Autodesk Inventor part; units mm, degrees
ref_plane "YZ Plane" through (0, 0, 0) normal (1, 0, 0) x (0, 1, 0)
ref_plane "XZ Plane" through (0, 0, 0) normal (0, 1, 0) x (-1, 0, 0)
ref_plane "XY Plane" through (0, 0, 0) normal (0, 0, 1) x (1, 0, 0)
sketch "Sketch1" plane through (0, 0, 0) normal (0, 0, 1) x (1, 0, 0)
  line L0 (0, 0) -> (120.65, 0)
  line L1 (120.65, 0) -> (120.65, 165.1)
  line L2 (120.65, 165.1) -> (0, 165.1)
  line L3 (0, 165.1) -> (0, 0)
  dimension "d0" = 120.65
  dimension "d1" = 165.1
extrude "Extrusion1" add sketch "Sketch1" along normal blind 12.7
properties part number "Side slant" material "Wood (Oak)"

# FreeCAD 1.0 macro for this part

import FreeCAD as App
import Part
import Sketcher
Q = App.Units.Quantity


def add_polygon(sketch, points):
    """Adds a closed chain of lines whose ends are joined by coincident constraints."""
    first, n = sketch.GeometryCount, len(points)
    for a, b in zip(points, points[1:] + points[:1]):
        sketch.addGeometry(Part.LineSegment(App.Vector(*a, 0), App.Vector(*b, 0)), False)
    for i in range(n):
        sketch.addConstraint(Sketcher.Constraint("Coincident", first + i, 2, first + (i + 1) % n, 1))

doc = App.newDocument("Part")
body = doc.addObject("PartDesign::Body", "Body")

# Sketch on XY plane
sketch1 = body.newObject("Sketcher::SketchObject", "Sketch")
sketch1.AttachmentSupport = (doc.getObject("XY_Plane"), [""])
sketch1.MapMode = "FlatFace"
add_polygon(sketch1, [(0, 165.1), (0, 0), (120.65, 0), (120.65, 165.1)])  # lines 0-3
sketch1.addConstraint(Sketcher.Constraint("Vertical", 0))
sketch1.addConstraint(Sketcher.Constraint("Horizontal", 1))
sketch1.addConstraint(Sketcher.Constraint("Vertical", 2))
sketch1.addConstraint(Sketcher.Constraint("Horizontal", 3))
sketch1.addConstraint(Sketcher.Constraint("Coincident", 0, 2, -1, 1))
sketch1.addConstraint(Sketcher.Constraint("DistanceY", 0, 2, 0, 1, Q("6.5 in")))
sketch1.addConstraint(Sketcher.Constraint("DistanceX", 1, 1, 1, 2, Q("4.75 in")))
pad1 = body.newObject("PartDesign::Pad", "Pad")
pad1.Profile = sketch1
pad1.Length = Q("0.5 in")

doc.recompute()
